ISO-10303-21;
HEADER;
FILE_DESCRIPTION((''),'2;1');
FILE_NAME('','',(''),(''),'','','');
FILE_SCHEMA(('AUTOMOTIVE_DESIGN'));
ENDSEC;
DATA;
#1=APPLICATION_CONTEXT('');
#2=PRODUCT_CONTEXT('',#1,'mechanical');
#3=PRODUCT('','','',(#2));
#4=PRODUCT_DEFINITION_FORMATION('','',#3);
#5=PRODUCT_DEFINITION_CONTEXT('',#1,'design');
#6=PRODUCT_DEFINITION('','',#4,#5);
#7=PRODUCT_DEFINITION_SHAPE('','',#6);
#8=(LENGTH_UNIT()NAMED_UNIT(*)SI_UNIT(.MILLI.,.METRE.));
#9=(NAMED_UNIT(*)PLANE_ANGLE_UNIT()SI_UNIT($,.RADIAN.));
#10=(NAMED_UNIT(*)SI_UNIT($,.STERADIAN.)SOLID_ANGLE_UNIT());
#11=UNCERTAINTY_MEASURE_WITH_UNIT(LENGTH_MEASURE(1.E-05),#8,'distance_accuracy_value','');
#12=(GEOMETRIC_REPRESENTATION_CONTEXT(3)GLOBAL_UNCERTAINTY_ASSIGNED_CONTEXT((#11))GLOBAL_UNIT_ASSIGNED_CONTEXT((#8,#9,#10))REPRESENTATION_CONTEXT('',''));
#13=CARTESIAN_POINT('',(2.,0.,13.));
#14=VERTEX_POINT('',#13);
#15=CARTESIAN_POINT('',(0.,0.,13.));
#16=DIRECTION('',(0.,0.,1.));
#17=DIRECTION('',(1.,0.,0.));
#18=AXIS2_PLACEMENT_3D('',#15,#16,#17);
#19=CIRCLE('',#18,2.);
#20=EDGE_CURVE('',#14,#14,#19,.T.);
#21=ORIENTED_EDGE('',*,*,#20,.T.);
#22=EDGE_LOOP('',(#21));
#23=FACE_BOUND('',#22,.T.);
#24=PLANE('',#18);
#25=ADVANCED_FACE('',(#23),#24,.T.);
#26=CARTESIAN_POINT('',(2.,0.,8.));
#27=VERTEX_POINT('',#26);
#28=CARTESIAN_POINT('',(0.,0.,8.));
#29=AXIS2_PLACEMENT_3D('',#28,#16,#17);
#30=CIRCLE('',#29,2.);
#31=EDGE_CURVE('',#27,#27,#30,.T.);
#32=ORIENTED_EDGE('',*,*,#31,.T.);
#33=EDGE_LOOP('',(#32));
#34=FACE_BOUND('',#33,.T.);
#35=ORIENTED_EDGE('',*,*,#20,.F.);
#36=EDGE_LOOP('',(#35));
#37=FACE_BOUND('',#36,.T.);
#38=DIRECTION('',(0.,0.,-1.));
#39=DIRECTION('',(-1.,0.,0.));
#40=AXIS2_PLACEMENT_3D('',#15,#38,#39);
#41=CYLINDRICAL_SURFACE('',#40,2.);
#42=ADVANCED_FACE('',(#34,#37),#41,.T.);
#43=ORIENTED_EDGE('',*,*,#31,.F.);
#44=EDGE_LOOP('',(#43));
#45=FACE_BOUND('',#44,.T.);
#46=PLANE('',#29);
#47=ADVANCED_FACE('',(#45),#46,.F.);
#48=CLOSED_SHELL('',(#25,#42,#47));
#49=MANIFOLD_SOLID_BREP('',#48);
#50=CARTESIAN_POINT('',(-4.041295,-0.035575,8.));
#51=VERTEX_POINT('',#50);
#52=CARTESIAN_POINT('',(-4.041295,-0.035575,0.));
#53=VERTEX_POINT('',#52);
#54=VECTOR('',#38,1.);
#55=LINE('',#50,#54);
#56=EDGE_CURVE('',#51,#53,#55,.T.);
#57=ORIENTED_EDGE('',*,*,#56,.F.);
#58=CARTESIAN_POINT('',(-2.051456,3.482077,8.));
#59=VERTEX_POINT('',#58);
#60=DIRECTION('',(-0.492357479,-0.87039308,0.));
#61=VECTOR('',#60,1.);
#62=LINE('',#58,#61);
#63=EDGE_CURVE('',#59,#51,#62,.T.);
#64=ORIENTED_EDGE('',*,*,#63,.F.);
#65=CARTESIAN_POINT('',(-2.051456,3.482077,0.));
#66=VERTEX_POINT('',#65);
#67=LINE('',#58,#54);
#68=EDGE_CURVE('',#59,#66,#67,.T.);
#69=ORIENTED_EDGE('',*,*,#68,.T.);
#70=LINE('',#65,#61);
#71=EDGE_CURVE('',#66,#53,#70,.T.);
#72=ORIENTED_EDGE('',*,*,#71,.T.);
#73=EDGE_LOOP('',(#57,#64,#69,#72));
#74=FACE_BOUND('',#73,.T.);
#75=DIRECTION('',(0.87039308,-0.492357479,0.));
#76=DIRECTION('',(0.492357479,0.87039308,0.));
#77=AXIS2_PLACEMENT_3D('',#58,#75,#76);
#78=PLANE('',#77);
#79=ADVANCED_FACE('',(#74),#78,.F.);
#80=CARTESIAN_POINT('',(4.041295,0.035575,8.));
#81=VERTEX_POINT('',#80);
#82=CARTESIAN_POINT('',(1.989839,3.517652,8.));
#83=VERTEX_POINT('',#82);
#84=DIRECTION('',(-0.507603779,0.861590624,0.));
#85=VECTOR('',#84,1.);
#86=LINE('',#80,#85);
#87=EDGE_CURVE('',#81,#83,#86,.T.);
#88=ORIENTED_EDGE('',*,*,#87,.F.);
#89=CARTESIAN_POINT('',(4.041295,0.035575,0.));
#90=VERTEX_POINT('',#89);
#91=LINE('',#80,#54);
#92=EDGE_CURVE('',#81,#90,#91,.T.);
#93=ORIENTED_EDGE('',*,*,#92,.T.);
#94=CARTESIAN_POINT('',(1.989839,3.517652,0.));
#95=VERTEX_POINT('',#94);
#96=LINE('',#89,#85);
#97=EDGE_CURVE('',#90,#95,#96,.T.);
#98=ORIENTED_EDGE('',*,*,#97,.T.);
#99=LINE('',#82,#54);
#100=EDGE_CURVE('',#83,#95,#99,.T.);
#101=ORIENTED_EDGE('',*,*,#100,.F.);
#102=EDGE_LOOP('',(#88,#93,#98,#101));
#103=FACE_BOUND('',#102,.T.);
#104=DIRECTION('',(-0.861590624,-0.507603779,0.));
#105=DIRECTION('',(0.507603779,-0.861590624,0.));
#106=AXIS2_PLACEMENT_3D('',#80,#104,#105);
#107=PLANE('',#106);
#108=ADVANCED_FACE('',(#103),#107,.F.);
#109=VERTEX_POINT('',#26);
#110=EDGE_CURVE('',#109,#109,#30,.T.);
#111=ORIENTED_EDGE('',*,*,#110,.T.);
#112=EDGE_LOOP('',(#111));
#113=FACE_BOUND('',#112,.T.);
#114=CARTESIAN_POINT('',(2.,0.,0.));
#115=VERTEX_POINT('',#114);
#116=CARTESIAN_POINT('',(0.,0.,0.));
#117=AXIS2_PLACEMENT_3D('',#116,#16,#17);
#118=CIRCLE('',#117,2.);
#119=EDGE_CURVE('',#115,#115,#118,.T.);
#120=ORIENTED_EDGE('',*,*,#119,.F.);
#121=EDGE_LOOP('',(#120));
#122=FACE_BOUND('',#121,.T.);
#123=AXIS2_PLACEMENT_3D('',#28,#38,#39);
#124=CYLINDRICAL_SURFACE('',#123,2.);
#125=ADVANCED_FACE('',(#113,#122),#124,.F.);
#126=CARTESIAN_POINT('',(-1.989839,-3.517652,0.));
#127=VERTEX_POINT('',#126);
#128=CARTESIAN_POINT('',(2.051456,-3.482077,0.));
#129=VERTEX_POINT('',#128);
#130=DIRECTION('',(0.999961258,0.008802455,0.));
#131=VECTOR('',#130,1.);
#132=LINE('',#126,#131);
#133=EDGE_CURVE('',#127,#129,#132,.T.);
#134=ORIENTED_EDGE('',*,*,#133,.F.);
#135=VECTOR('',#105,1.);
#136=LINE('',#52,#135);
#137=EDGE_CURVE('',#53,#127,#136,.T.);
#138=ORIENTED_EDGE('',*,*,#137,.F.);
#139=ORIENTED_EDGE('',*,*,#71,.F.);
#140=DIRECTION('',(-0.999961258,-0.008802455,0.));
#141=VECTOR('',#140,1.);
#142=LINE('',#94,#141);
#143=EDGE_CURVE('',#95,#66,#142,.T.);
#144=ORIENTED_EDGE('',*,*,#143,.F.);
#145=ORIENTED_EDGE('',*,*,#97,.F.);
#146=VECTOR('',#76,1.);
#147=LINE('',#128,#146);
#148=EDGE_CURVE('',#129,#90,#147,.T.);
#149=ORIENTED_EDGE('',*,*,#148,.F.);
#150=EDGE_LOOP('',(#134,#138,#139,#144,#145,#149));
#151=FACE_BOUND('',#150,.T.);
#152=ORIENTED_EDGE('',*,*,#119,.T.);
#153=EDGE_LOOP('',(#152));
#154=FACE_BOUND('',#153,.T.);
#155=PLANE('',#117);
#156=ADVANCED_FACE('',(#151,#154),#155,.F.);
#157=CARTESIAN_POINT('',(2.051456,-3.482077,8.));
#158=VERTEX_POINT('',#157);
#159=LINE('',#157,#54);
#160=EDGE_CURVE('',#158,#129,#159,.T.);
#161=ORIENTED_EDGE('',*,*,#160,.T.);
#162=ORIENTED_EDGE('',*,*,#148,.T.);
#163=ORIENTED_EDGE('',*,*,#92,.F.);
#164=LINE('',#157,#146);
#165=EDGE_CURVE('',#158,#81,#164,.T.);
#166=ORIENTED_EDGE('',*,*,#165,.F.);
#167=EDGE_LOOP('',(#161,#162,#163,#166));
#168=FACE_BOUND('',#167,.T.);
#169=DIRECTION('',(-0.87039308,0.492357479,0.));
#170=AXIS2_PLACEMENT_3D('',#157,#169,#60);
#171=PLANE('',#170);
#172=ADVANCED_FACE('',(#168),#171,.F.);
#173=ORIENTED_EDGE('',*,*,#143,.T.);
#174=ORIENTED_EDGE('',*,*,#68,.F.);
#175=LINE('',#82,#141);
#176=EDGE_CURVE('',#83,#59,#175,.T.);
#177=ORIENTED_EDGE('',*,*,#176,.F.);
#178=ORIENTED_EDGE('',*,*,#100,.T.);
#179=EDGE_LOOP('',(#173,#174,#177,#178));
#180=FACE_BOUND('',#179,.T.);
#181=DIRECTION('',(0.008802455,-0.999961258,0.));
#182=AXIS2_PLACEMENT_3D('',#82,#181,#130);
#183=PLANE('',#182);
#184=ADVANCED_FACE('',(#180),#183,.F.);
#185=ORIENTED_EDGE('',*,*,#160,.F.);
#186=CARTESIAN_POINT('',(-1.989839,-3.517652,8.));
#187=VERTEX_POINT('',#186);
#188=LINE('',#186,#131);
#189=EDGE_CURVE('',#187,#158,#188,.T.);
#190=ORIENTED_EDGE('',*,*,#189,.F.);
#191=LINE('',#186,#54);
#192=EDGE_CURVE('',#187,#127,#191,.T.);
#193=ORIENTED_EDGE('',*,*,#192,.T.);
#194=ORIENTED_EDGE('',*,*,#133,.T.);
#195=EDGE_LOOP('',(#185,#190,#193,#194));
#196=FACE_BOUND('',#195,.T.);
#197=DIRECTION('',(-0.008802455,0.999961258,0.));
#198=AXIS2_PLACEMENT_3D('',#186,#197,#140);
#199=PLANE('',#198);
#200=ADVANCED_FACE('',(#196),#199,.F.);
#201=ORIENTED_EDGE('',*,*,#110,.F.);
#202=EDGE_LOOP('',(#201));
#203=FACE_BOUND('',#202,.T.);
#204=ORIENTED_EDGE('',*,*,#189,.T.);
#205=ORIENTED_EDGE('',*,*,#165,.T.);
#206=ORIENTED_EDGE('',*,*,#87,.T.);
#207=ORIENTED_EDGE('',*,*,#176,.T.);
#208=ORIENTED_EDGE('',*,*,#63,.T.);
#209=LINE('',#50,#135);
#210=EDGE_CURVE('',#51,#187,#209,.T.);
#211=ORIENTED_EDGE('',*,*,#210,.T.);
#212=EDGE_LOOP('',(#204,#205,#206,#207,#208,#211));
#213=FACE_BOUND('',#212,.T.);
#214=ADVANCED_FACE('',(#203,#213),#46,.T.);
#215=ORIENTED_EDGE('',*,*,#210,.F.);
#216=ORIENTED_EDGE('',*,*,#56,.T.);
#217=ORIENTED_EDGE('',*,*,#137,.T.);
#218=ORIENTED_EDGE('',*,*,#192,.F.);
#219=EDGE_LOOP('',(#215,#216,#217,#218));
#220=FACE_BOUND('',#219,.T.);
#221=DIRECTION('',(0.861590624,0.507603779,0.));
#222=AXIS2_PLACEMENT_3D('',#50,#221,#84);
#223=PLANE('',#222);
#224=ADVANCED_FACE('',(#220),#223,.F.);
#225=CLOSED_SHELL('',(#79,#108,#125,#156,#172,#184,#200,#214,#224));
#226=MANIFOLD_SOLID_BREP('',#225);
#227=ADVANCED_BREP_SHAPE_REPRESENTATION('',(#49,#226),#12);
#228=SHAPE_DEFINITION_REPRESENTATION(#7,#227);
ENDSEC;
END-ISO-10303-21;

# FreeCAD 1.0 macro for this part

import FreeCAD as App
import Part
import Sketcher
from FreeCAD import Vector
Q = App.Units.Quantity


def add_polygon(sketch, points):
    """Adds a closed chain of lines whose ends are joined by coincident constraints."""
    first, n = sketch.GeometryCount, len(points)
    for a, b in zip(points, points[1:] + points[:1]):
        sketch.addGeometry(Part.LineSegment(App.Vector(*a, 0), App.Vector(*b, 0)), False)
    for i in range(n):
        sketch.addConstraint(Sketcher.Constraint("Coincident", first + i, 2, first + (i + 1) % n, 1))

doc = App.newDocument("Part")
body = doc.addObject("PartDesign::Body", "Body")

sketch1 = body.newObject("Sketcher::SketchObject", "Sketch")
sketch1.AttachmentSupport = (doc.getObject("XY_Plane"), [""])
sketch1.MapMode = "FlatFace"
add_polygon(sketch1, [(2.1, -3.5), (4, 0), (2, 3.5), (-2.1, 3.5), (-4, 0), (-2, -3.5)])
sketch1.addGeometry(Part.Circle(Vector(0, 0, 0), Vector(0, 0, 1), 2), False)
sketch1.addConstraint(Sketcher.Constraint("Coincident", 6, 3, -1, 1))
sketch1.addConstraint(Sketcher.Constraint("Symmetric", 0, 2, 3, 2, -1, 1))
sketch1.addConstraint(Sketcher.Constraint("Symmetric", 1, 2, 4, 2, -1, 1))
sketch1.addConstraint(Sketcher.Constraint("Symmetric", 2, 2, 5, 2, -1, 1))
sketch1.addConstraint(Sketcher.Constraint("Equal", 0, 1))
sketch1.addConstraint(Sketcher.Constraint("Equal", 1, 2))
sketch1.addConstraint(Sketcher.Constraint("Diameter", 6, Q("4 mm")))
sketch1.addConstraint(Sketcher.Constraint("Distance", 0, Q("4.041452 mm")))
sketch1.addConstraint(Sketcher.Constraint("DistanceX", -1, 1, 1, 2, Q("1.989839 mm")))
sketch1.addConstraint(Sketcher.Constraint("DistanceY", -1, 1, 1, 2, Q("3.517652 mm")))
sketch1.addConstraint(Sketcher.Constraint("DistanceX", 2, 2, 0, 2, Q("6.092752 mm")))
pad1 = body.newObject("PartDesign::Pad", "Pad")
pad1.Profile = sketch1
pad1.Length = 8
body2 = doc.addObject("PartDesign::Body", "Body001")

sketch2 = body2.newObject("Sketcher::SketchObject", "Sketch001")
sketch2.AttachmentSupport = (doc.getObject("XY_Plane001"), [""])
sketch2.MapMode = "FlatFace"
sketch2.AttachmentOffset = App.Placement(Vector(0, 0, 8), App.Rotation())
sketch2.addGeometry(Part.Circle(Vector(0, 0, 0), Vector(0, 0, 1), 2), False)
sketch2.addConstraint(Sketcher.Constraint("Coincident", 0, 3, -1, 1))
sketch2.addConstraint(Sketcher.Constraint("Diameter", 0, Q("4 mm")))
pad2 = body2.newObject("PartDesign::Pad", "Pad001")
pad2.Profile = sketch2
pad2.Length = 5

doc.recompute()
